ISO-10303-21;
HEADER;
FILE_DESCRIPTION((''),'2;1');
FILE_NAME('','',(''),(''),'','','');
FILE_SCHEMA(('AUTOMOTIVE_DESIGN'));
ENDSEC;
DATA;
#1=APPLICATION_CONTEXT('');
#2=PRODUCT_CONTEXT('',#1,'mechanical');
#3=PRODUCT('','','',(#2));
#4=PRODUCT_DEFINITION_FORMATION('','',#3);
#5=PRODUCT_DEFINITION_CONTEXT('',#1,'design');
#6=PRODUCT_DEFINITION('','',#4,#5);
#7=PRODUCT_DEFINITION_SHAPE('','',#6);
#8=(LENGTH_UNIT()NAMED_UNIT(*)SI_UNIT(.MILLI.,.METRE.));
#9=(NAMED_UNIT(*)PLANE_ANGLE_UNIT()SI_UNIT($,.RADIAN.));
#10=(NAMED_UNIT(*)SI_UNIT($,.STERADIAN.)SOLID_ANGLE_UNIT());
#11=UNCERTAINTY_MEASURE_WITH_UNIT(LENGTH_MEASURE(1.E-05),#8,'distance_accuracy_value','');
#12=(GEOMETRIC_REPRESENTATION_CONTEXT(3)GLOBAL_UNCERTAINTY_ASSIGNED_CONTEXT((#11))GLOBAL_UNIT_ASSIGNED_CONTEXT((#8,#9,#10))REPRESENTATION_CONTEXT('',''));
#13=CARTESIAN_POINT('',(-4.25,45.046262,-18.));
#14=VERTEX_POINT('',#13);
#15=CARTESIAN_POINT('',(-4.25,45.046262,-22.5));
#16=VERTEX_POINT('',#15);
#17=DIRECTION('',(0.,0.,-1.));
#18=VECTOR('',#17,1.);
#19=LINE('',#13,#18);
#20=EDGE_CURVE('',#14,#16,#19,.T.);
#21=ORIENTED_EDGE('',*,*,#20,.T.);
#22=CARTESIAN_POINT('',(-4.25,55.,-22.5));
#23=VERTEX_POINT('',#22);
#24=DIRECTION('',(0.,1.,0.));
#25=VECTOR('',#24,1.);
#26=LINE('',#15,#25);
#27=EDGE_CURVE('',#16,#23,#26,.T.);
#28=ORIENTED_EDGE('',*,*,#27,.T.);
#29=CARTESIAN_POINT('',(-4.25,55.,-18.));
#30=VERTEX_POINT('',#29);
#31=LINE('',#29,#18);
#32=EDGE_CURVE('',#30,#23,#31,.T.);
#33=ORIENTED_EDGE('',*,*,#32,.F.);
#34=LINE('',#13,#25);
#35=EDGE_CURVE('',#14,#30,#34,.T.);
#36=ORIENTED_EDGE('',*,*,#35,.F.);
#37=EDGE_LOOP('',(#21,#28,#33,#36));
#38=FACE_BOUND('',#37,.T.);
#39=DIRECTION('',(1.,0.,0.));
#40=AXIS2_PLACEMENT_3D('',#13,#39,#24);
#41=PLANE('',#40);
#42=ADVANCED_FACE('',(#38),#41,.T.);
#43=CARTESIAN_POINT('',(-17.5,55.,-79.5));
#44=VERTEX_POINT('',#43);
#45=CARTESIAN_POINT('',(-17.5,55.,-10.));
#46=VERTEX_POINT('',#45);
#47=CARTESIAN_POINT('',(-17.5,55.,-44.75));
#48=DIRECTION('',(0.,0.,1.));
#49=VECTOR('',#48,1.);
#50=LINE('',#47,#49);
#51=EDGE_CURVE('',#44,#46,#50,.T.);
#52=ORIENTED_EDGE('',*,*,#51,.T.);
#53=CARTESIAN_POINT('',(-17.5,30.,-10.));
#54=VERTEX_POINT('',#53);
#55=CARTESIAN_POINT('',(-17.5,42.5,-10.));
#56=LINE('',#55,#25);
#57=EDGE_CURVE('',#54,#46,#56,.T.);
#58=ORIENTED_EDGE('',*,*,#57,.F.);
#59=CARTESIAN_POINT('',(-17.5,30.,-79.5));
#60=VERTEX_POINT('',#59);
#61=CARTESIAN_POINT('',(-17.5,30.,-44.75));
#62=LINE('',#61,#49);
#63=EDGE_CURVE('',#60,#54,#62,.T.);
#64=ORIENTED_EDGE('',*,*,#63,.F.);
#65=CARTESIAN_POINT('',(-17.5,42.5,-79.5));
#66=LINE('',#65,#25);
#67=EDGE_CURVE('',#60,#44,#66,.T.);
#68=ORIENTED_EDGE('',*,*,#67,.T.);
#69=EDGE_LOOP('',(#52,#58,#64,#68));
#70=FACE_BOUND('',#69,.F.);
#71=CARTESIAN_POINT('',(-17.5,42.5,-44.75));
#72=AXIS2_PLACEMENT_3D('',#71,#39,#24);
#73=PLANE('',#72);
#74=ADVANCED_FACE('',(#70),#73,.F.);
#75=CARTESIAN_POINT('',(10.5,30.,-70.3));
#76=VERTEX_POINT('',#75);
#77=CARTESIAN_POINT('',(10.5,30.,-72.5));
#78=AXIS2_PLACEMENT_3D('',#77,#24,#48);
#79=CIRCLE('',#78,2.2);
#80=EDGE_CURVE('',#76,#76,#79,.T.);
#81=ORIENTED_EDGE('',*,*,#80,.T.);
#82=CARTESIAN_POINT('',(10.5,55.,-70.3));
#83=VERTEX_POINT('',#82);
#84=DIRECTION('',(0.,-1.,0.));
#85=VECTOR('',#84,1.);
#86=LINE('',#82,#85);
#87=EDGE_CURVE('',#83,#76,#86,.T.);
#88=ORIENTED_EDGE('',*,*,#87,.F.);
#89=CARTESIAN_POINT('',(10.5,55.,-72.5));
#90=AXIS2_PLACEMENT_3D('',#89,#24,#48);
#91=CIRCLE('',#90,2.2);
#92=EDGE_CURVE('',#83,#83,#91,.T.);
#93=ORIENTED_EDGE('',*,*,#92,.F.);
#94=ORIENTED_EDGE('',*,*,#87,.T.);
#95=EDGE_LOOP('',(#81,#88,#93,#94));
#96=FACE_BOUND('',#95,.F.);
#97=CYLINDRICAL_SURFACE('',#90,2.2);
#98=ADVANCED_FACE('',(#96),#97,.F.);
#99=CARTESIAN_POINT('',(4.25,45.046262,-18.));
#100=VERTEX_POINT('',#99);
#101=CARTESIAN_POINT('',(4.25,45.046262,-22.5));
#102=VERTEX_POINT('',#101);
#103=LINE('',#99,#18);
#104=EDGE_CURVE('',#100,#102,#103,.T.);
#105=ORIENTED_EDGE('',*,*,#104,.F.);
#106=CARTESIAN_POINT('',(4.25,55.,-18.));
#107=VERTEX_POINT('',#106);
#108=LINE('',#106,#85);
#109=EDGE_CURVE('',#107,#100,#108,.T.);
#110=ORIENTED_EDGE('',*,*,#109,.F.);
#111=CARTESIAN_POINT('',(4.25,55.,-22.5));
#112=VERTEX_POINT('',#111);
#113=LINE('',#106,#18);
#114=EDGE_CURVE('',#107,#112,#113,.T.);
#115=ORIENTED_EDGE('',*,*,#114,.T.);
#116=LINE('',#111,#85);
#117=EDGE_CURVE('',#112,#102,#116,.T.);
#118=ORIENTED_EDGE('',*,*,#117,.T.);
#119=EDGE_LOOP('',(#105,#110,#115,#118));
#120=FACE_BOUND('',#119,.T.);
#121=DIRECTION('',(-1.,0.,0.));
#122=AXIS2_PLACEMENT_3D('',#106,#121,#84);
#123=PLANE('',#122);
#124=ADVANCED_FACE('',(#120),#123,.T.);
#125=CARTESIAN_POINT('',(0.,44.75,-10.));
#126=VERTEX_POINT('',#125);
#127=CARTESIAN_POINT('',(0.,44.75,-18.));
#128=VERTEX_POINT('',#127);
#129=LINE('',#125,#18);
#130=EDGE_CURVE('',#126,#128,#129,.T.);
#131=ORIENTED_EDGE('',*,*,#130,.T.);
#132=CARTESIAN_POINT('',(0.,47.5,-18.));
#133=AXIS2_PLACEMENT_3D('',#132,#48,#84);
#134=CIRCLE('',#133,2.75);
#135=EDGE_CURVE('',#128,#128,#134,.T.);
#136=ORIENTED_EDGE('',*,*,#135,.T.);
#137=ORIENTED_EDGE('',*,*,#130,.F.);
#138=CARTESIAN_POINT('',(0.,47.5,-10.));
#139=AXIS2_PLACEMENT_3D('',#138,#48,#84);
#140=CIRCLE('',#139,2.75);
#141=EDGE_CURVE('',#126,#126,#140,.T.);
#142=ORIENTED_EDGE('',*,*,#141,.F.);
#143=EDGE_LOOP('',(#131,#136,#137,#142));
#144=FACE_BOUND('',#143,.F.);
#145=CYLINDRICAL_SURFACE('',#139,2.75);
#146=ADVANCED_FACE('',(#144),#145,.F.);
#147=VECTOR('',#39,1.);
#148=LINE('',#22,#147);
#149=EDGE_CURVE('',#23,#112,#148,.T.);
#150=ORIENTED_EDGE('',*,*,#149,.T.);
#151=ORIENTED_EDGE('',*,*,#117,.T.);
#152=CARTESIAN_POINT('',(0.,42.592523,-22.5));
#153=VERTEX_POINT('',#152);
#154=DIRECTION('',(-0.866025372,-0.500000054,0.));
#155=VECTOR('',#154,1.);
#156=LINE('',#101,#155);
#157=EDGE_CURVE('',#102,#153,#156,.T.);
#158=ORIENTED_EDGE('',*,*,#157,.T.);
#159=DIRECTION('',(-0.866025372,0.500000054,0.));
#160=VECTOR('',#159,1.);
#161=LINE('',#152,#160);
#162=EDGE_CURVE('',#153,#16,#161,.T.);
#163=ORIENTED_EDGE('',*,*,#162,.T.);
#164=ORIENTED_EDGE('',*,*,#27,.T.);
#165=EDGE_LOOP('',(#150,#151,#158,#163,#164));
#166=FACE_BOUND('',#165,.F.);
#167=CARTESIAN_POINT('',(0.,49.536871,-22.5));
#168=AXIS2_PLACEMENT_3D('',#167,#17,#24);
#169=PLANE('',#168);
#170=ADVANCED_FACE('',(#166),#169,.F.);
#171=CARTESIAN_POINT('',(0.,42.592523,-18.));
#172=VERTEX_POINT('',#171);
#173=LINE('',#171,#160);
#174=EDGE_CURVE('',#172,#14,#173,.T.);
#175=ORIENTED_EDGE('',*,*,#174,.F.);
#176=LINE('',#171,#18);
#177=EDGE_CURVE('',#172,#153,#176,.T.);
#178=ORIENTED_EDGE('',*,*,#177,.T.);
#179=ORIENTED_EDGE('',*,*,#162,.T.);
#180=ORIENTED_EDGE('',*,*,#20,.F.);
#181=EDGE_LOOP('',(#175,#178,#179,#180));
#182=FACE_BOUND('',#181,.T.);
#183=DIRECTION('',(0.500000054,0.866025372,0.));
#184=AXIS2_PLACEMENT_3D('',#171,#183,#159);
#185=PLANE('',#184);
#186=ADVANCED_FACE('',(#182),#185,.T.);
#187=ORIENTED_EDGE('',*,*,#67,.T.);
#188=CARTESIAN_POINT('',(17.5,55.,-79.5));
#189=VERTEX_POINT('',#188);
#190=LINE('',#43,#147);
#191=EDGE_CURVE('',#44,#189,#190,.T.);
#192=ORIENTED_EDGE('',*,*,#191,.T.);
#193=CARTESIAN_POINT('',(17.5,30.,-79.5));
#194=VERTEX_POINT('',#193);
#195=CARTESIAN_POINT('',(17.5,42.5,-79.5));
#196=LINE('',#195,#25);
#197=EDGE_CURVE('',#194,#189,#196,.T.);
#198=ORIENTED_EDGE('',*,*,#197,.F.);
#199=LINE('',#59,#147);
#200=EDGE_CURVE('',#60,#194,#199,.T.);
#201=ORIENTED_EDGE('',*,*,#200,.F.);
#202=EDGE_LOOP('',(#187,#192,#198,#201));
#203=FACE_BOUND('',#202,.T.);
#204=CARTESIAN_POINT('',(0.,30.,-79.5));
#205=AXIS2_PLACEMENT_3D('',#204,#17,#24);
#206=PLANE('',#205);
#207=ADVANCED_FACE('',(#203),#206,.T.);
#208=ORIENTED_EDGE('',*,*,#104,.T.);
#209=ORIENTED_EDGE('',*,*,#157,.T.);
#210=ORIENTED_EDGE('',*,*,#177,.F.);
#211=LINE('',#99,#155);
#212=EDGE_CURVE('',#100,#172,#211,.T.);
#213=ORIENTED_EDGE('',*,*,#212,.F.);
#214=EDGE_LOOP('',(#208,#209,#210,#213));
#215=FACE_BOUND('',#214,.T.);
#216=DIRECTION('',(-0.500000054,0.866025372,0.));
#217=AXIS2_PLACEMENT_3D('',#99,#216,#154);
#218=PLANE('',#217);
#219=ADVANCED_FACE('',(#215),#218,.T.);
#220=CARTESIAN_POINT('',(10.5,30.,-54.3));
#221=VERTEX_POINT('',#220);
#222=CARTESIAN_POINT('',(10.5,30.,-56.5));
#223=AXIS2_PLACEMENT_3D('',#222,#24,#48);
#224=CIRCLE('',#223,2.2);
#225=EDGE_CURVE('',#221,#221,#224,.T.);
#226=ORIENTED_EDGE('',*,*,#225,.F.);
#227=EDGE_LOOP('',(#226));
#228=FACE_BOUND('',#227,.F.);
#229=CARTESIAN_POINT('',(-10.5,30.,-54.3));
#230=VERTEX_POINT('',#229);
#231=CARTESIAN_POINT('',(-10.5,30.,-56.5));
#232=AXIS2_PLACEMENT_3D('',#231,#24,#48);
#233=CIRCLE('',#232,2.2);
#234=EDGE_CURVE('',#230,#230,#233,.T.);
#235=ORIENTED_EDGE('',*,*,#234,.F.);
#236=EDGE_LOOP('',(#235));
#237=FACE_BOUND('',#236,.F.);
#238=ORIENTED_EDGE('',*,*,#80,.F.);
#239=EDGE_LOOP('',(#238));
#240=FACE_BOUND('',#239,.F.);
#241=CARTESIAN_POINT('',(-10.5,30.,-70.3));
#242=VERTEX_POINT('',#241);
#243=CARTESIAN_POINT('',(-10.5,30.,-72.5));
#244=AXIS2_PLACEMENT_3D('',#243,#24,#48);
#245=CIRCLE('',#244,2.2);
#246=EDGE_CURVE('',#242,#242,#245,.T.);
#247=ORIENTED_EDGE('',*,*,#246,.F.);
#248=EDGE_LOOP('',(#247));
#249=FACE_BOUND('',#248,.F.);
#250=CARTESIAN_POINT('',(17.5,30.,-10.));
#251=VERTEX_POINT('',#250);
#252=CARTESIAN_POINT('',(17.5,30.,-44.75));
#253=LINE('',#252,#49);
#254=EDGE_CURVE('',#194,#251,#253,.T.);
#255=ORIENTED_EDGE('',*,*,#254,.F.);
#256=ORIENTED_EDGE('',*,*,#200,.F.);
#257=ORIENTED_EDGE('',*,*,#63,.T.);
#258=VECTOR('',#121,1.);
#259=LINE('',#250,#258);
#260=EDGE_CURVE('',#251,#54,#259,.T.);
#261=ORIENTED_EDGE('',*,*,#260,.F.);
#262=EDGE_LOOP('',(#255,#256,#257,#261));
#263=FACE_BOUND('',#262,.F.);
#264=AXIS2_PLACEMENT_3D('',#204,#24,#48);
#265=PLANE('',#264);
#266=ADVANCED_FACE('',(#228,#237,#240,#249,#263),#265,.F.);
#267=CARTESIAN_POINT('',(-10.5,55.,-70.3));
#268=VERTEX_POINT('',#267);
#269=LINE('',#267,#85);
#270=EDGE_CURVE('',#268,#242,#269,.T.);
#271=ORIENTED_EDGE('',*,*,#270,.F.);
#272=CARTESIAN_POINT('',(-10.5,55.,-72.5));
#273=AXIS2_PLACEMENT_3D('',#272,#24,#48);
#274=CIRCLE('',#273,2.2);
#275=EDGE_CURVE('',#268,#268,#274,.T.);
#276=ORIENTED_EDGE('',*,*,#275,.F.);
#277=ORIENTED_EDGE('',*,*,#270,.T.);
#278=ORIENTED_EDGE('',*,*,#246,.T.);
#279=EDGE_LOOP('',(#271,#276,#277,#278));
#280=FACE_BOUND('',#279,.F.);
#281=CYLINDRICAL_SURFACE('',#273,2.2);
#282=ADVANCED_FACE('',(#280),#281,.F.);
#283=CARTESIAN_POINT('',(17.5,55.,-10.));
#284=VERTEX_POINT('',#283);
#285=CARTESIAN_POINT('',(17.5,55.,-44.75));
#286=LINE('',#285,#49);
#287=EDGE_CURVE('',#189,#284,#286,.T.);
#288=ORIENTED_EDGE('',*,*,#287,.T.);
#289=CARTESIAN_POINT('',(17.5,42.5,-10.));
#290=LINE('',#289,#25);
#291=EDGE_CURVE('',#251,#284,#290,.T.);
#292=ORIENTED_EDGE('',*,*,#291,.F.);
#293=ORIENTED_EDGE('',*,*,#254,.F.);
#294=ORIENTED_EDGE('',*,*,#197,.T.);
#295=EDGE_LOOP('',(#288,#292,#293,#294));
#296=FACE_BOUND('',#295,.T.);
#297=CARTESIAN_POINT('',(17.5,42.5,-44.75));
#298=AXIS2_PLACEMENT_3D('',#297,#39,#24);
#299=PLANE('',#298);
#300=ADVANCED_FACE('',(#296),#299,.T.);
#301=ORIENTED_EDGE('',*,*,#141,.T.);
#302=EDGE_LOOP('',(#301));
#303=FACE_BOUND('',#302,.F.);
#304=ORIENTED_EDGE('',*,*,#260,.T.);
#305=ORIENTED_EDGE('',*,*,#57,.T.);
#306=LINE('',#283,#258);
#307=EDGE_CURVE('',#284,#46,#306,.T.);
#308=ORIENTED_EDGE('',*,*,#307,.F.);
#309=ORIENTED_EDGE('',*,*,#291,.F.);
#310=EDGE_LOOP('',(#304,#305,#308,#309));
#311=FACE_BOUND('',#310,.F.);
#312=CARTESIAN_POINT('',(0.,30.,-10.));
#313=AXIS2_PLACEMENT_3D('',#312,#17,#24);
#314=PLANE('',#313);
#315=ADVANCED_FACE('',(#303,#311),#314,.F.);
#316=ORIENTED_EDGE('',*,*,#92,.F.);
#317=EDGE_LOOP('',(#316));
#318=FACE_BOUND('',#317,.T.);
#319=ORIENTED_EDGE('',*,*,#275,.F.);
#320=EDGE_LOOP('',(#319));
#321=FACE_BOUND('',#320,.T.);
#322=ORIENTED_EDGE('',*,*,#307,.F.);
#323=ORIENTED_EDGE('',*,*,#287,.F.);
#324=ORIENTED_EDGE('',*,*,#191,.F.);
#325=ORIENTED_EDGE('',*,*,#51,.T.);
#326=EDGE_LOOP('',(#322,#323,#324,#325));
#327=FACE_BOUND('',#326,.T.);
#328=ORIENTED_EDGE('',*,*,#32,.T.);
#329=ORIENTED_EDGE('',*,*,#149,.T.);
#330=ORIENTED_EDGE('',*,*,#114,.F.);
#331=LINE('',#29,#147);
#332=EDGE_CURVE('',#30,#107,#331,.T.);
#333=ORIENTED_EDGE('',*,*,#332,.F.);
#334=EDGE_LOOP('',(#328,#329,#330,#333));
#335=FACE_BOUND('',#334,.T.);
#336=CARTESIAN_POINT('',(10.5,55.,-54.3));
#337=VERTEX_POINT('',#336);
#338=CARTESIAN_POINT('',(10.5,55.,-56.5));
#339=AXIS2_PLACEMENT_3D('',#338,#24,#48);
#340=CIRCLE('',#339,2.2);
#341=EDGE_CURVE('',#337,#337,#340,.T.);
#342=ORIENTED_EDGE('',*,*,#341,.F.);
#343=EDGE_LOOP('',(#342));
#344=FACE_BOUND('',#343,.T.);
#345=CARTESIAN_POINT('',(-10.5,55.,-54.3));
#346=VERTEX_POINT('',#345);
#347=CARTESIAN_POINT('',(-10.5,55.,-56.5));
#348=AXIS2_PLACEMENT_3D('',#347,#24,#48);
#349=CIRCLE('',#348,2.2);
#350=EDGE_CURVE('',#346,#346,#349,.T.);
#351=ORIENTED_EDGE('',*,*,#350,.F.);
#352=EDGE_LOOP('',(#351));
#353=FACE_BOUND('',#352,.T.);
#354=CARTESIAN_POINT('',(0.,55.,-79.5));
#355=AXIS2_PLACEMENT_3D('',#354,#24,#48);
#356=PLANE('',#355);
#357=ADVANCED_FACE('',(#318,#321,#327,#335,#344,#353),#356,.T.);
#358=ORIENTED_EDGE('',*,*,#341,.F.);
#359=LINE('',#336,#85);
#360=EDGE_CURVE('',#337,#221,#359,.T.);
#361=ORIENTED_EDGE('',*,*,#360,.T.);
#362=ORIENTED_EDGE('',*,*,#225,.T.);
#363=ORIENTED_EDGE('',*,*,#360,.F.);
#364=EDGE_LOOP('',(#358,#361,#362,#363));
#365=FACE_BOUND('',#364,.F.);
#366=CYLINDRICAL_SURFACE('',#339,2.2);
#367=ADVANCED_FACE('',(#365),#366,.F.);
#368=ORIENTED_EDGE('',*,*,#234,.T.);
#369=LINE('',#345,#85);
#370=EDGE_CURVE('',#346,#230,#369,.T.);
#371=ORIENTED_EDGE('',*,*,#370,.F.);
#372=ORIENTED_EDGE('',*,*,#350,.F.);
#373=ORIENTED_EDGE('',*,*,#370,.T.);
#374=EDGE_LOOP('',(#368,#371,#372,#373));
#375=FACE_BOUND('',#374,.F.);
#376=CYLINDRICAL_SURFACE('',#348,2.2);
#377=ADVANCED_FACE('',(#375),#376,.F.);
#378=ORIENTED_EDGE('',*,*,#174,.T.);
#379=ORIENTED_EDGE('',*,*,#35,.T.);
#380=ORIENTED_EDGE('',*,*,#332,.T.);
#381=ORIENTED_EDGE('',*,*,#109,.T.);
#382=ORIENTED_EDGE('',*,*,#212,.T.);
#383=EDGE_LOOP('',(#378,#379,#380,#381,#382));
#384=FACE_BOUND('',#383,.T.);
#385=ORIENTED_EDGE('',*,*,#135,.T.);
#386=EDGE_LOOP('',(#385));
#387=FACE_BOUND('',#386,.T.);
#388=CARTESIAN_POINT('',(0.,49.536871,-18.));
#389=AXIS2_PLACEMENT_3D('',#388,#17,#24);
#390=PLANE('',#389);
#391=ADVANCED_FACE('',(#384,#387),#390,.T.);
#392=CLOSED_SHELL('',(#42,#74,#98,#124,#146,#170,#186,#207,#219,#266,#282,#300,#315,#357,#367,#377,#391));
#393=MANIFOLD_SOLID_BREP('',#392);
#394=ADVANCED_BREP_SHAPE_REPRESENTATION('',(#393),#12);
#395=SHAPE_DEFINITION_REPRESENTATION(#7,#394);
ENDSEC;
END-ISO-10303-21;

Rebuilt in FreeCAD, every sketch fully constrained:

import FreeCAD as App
import Part
import Sketcher

V = App.Vector
Q = App.Units.Quantity

doc = App.newDocument("Part")
body = doc.addObject("PartDesign::Body", "Body")

# Sketch on YZ plane
sketch1 = body.newObject("Sketcher::SketchObject", "Sketch")
sketch1.AttachmentSupport = (doc.getObject("YZ_Plane"), [""])
sketch1.MapMode = "FlatFace"
sketch1.addGeometry([
    Part.LineSegment(V(30, -10, 0), V(30, -79.5, 0)),
    Part.LineSegment(V(30, -79.5, 0), V(55, -79.5, 0)),
    Part.LineSegment(V(55, -79.5, 0), V(55, -10, 0)),
    Part.LineSegment(V(55, -10, 0), V(30, -10, 0)),
], False)
sketch1.addConstraint([
    Sketcher.Constraint("Coincident", 0, 2, 1, 1),
    Sketcher.Constraint("Coincident", 1, 2, 2, 1),
    Sketcher.Constraint("Coincident", 2, 2, 3, 1),
    Sketcher.Constraint("Coincident", 3, 2, 0, 1),
    Sketcher.Constraint("Vertical", 0),
    Sketcher.Constraint("Horizontal", 1),
    Sketcher.Constraint("Vertical", 2),
    Sketcher.Constraint("Horizontal", 3),
    Sketcher.Constraint("DistanceX", 1, 1, 1, 2, Q("25 mm")),
    Sketcher.Constraint("DistanceY", 0, 2, 0, 1, Q("69.5 mm")),
    Sketcher.Constraint("DistanceX", -1, 1, 0, 2, Q("30 mm")),
    Sketcher.Constraint("DistanceY", 2, 2, -1, 1, Q("10 mm")),
])
pad1 = body.newObject("PartDesign::Pad", "Pad")
pad1.Profile = sketch1
pad1.Length = 35
pad1.Midplane = True

# Sketch on XY plane
sketch2 = body.newObject("Sketcher::SketchObject", "Sketch001")
sketch2.AttachmentSupport = (doc.getObject("XY_Plane"), [""])
sketch2.MapMode = "FlatFace"
sketch2.AttachmentOffset = App.Placement(V(0, 0, -18), App.Rotation())
sketch2.addGeometry([
    Part.LineSegment(V(4.25, 55, 0), V(-4.25, 55, 0)),  # 0
    Part.LineSegment(V(-4.25, 55, 0), V(-4.25, 45.046262, 0)),  # 1
    Part.LineSegment(V(-4.25, 45.046262, 0), V(0, 42.592523, 0)),  # 2
    Part.LineSegment(V(0, 42.592523, 0), V(4.25, 45.046262, 0)),  # 3
    Part.LineSegment(V(4.25, 45.046262, 0), V(4.25, 55, 0)),  # 4
], False)
sketch2.addConstraint([
    Sketcher.Constraint("Coincident", 0, 2, 1, 1),
    Sketcher.Constraint("Coincident", 1, 2, 2, 1),
    Sketcher.Constraint("Coincident", 2, 2, 3, 1),
    Sketcher.Constraint("Coincident", 3, 2, 4, 1),
    Sketcher.Constraint("Coincident", 4, 2, 0, 1),
    Sketcher.Constraint("Horizontal", 0),
    Sketcher.Constraint("Vertical", 1),
    Sketcher.Constraint("Vertical", 4),
    Sketcher.Constraint("Symmetric", 1, 2, 3, 2, -2),
    Sketcher.Constraint("PointOnObject", 2, 2, -2),
    Sketcher.Constraint("Angle", 2, Q("-30.000004 deg")),
    Sketcher.Constraint("DistanceX", 0, 2, 0, 1, Q("8.5 mm")),
    Sketcher.Constraint("DistanceY", -1, 1, 0, 2, Q("55 mm")),
    Sketcher.Constraint("DistanceY", 1, 2, 1, 1, Q("9.953738 mm")),
])
pocket1 = body.newObject("PartDesign::Pocket", "Pocket")
pocket1.Profile = sketch2
pocket1.Length = 4.5

# Sketch on XY plane
sketch3 = body.newObject("Sketcher::SketchObject", "Sketch002")
sketch3.AttachmentSupport = (doc.getObject("XY_Plane"), [""])
sketch3.MapMode = "FlatFace"
sketch3.AttachmentOffset = App.Placement(V(0, 0, -10), App.Rotation())
sketch3.addGeometry(Part.Circle(V(0, 47.5, 0), V(0, 0, 1), 2.75), False)
sketch3.addConstraint([
    Sketcher.Constraint("PointOnObject", 0, 3, -2),
    Sketcher.Constraint("Diameter", 0, Q("5.5 mm")),
    Sketcher.Constraint("DistanceY", -1, 1, 0, 3, Q("47.5 mm")),
])
pocket2 = body.newObject("PartDesign::Pocket", "Pocket001")
pocket2.Profile = sketch3
pocket2.Length = 12

# Sketch on XZ plane
sketch4 = body.newObject("Sketcher::SketchObject", "Sketch003")
sketch4.AttachmentSupport = (doc.getObject("XZ_Plane"), [""])
sketch4.MapMode = "FlatFace"
sketch4.AttachmentOffset = App.Placement(V(0, 0, -55), App.Rotation())
sketch4.addGeometry([
    Part.Circle(V(10.5, -72.5, 0), V(0, 0, 1), 2.2),
    Part.Circle(V(10.5, -56.5, 0), V(0, 0, 1), 2.2),
    Part.Circle(V(-10.5, -72.5, 0), V(0, 0, 1), 2.2),
    Part.Circle(V(-10.5, -56.5, 0), V(0, 0, 1), 2.2),
], False)
sketch4.addConstraint([
    Sketcher.Constraint("Equal", 0, 1),
    Sketcher.Constraint("Equal", 1, 2),
    Sketcher.Constraint("Equal", 2, 3),
    Sketcher.Constraint("Symmetric", 0, 3, 2, 3, -2),
    Sketcher.Constraint("Symmetric", 1, 3, 3, 3, -2),
    Sketcher.Constraint("Vertical", 0, 3, 1, 3),
    Sketcher.Constraint("Diameter", 0, Q("4.4 mm")),
    Sketcher.Constraint("DistanceY", 0, 3, 1, 3, Q("16 mm")),
    Sketcher.Constraint("DistanceX", 2, 3, 0, 3, Q("21 mm")),
    Sketcher.Constraint("DistanceY", 0, 3, -1, 1, Q("72.5 mm")),
])
pocket3 = body.newObject("PartDesign::Pocket", "Pocket002")
pocket3.Profile = sketch4
pocket3.Type = "ThroughAll"
pocket3.Reversed = True

doc.recompute()
